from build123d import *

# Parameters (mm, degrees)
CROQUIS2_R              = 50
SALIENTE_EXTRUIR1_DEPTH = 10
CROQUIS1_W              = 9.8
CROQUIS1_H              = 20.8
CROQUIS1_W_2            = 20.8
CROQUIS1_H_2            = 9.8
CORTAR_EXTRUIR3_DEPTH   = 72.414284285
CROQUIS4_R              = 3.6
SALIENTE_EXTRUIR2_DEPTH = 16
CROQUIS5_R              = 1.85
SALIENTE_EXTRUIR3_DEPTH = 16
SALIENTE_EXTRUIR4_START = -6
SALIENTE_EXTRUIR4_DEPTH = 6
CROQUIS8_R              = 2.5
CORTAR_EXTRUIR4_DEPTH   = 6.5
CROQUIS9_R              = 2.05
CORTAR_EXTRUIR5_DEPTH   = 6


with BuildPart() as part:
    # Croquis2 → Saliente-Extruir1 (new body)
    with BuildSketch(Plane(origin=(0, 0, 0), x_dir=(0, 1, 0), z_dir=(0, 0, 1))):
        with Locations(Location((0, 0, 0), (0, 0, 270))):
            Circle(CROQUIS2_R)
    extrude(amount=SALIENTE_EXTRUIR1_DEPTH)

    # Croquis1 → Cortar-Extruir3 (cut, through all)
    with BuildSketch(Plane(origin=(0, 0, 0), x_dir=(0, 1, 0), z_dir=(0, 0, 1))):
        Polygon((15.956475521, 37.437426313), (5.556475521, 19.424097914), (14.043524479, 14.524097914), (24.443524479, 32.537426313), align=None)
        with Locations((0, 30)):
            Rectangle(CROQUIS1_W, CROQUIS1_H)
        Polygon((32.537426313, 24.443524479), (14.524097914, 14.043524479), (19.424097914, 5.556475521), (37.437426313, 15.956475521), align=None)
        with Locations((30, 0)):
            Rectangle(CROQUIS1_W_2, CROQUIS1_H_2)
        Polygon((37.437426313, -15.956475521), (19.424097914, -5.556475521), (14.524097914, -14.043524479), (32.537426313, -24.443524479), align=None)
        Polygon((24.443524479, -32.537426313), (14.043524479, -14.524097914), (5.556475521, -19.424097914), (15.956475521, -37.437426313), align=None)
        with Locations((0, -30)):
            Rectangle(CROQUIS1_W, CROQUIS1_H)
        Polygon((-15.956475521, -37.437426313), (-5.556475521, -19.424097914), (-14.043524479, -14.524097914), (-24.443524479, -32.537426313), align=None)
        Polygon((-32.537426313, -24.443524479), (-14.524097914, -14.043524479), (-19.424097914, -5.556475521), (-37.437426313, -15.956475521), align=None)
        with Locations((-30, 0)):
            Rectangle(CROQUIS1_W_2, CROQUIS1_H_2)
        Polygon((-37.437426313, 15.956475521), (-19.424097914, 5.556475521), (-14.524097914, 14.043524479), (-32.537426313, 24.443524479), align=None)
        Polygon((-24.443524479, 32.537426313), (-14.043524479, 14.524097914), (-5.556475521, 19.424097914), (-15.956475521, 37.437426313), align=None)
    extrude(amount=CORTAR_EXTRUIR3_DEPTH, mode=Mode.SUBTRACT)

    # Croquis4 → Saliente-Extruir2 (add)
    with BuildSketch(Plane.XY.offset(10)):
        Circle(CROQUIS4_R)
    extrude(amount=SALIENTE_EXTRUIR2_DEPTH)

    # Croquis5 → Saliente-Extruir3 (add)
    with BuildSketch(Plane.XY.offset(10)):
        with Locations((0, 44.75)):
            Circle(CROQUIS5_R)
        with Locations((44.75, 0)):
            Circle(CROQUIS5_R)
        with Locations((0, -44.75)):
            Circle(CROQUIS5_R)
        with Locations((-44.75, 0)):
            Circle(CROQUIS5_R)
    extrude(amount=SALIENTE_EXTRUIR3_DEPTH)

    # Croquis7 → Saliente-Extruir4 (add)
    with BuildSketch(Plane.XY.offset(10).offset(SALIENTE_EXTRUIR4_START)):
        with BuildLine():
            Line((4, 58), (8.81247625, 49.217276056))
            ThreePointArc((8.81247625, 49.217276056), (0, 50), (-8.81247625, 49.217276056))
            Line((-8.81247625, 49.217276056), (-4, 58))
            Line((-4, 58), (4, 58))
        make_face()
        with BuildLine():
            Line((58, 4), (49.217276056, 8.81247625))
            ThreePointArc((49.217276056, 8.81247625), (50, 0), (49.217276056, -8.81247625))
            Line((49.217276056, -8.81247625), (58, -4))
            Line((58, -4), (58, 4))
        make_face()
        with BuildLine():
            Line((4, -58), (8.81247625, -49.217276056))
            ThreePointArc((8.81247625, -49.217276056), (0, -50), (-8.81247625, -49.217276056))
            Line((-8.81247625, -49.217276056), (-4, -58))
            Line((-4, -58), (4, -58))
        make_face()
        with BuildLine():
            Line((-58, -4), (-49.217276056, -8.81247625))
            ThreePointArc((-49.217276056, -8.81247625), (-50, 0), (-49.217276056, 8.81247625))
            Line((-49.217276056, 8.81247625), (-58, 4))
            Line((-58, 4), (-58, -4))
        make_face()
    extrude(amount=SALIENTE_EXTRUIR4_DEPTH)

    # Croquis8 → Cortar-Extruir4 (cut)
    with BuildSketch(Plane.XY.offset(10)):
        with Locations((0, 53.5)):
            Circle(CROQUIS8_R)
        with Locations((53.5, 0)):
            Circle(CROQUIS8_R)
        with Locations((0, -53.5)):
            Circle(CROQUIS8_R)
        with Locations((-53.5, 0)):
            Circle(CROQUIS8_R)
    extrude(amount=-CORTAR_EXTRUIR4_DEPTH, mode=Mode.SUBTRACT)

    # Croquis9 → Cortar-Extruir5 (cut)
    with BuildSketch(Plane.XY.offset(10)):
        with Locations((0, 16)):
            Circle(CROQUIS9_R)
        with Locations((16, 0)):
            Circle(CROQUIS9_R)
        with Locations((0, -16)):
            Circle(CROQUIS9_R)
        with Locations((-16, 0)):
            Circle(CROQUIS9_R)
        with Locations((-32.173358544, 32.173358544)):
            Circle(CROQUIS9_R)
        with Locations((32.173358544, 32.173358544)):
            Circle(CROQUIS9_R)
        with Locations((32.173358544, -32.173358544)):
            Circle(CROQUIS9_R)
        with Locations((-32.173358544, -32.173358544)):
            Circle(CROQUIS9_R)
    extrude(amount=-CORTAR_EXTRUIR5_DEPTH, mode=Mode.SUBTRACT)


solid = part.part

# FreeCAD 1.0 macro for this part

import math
import FreeCAD as App
import Part
import Sketcher

V = App.Vector
Q = App.Units.Quantity


def add_polygon(sketch, points):
    """Adds a closed chain of lines whose ends are joined by coincident constraints."""
    first, n = sketch.GeometryCount, len(points)
    for a, b in zip(points, points[1:] + points[:1]):
        sketch.addGeometry(Part.LineSegment(App.Vector(*a, 0), App.Vector(*b, 0)), False)
    for i in range(n):
        sketch.addConstraint(Sketcher.Constraint("Coincident", first + i, 2, first + (i + 1) % n, 1))

doc = App.newDocument("Part")
body = doc.addObject("PartDesign::Body", "Body")

sketch1 = body.newObject("Sketcher::SketchObject", "Sketch")
sketch1.AttachmentSupport = (doc.getObject("XY_Plane"), [""])
sketch1.MapMode = "FlatFace"
sketch1.addGeometry(Part.Circle(V(0, 0, 0), V(0, 0, 1), 50), False)
sketch1.addConstraint([
    Sketcher.Constraint("Coincident", 0, 3, -1, 1),
    Sketcher.Constraint("Diameter", 0, 100.0),
])
pad1 = body.newObject("PartDesign::Pad", "Pad")
pad1.Profile = sketch1
pad1.Length = 10

sketch2 = body.newObject("Sketcher::SketchObject", "Sketch001")
sketch2.AttachmentSupport = (doc.getObject("XY_Plane"), [""])
sketch2.MapMode = "FlatFace"
add_polygon(sketch2, [(-37, 16), (-19, 6), (-15, 14), (-33, 24)])
add_polygon(sketch2, [(-40, -5), (-20, -5), (-20, 5), (-40, 5)])
add_polygon(sketch2, [(-24, 33), (-14, 15), (-6, 19), (-16, 37)])
add_polygon(sketch2, [(-5, 20), (5, 20), (5, 40), (-5, 40)])
add_polygon(sketch2, [(16, 37), (6, 19), (14, 15), (24, 33)])
add_polygon(sketch2, [(33, 24), (15, 14), (19, 6), (37, 16)])
add_polygon(sketch2, [(20, -5), (40, -5), (40, 5), (20, 5)])
add_polygon(sketch2, [(37, -16), (19, -6), (15, -14), (33, -24)])
add_polygon(sketch2, [(24, -33), (14, -15), (6, -19), (16, -37)])
add_polygon(sketch2, [(-5, -40), (5, -40), (5, -20), (-5, -20)])
add_polygon(sketch2, [(-16, -37), (-6, -19), (-14, -15), (-24, -33)])
add_polygon(sketch2, [(-33, -24), (-15, -14), (-19, -6), (-37, -16)])
sketch2.addConstraint([
    Sketcher.Constraint("Horizontal", 4),
    Sketcher.Constraint("Vertical", 5),
    Sketcher.Constraint("Horizontal", 6),
    Sketcher.Constraint("Vertical", 7),
    Sketcher.Constraint("Horizontal", 12),
    Sketcher.Constraint("Vertical", 13),
    Sketcher.Constraint("Horizontal", 14),
    Sketcher.Constraint("Vertical", 15),
    Sketcher.Constraint("Horizontal", 24),
    Sketcher.Constraint("Vertical", 25),
    Sketcher.Constraint("Horizontal", 26),
    Sketcher.Constraint("Vertical", 27),
    Sketcher.Constraint("Horizontal", 36),
    Sketcher.Constraint("Vertical", 37),
    Sketcher.Constraint("Horizontal", 38),
    Sketcher.Constraint("Vertical", 39),
    Sketcher.Constraint("Symmetric", 6, 2, 24, 2, -1, 1),
    Sketcher.Constraint("Symmetric", 4, 2, 26, 2, -1, 1),
    Sketcher.Constraint("Symmetric", 0, 2, 28, 2, -1, 1),
    Sketcher.Constraint("Symmetric", 1, 2, 29, 2, -1, 1),
    Sketcher.Constraint("Symmetric", 2, 2, 30, 2, -1, 1),
    Sketcher.Constraint("Symmetric", 3, 2, 31, 2, -1, 1),
    Sketcher.Constraint("Symmetric", 8, 2, 32, 2, -1, 1),
    Sketcher.Constraint("Symmetric", 9, 2, 33, 2, -1, 1),
    Sketcher.Constraint("Symmetric", 10, 2, 34, 2, -1, 1),
    Sketcher.Constraint("Symmetric", 11, 2, 35, 2, -1, 1),
    Sketcher.Constraint("Symmetric", 14, 2, 36, 2, -1, 1),
    Sketcher.Constraint("Symmetric", 12, 2, 38, 2, -1, 1),
    Sketcher.Constraint("Symmetric", 16, 2, 40, 2, -1, 1),
    Sketcher.Constraint("Symmetric", 17, 2, 41, 2, -1, 1),
    Sketcher.Constraint("Symmetric", 18, 2, 42, 2, -1, 1),
    Sketcher.Constraint("Symmetric", 19, 2, 43, 2, -1, 1),
    Sketcher.Constraint("Symmetric", 20, 2, 44, 2, -1, 1),
    Sketcher.Constraint("Symmetric", 21, 2, 45, 2, -1, 1),
    Sketcher.Constraint("Symmetric", 22, 2, 46, 2, -1, 1),
    Sketcher.Constraint("Symmetric", 23, 2, 47, 2, -1, 1),
    Sketcher.Constraint("Symmetric", 9, 2, 16, 2, -2),
    Sketcher.Constraint("Symmetric", 8, 2, 17, 2, -2),
    Sketcher.Constraint("Symmetric", 11, 2, 18, 2, -2),
    Sketcher.Constraint("Symmetric", 10, 2, 19, 2, -2),
    Sketcher.Constraint("Symmetric", 1, 2, 20, 2, -2),
    Sketcher.Constraint("Symmetric", 0, 2, 21, 2, -2),
    Sketcher.Constraint("Symmetric", 3, 2, 22, 2, -2),
    Sketcher.Constraint("Symmetric", 2, 2, 23, 2, -2),
    Sketcher.Constraint("Perpendicular", 0, 1),
    Sketcher.Constraint("Perpendicular", 1, 2),
    Sketcher.Constraint("Perpendicular", 2, 3),
    Sketcher.Constraint("Perpendicular", 8, 9),
    Sketcher.Constraint("Perpendicular", 9, 10),
    Sketcher.Constraint("Perpendicular", 10, 11),
    Sketcher.Constraint("Parallel", 3, 16),
    Sketcher.Constraint("Horizontal", 7, 2, 24, 2),
    Sketcher.Constraint("Vertical", 13, 2, 36, 2),
    Sketcher.Constraint("Equal", 38, 5),
    Sketcher.Constraint("Equal", 26, 13),
    Sketcher.Constraint("Equal", 2, 8),
    Sketcher.Constraint("Equal", 3, 9),
    Sketcher.Constraint("Angle", 0, Q("-30 deg")),
    Sketcher.Constraint("DistanceX", 4, 1, 4, 2, 20.8),
    Sketcher.Constraint("DistanceX", 12, 1, 12, 2, 9.8),
    Sketcher.Constraint("Distance", 0, 20.8),
    Sketcher.Constraint("Distance", 1, 9.8),
    Sketcher.Constraint("DistanceX", 4, 2, -1, 1, 19.6),
    Sketcher.Constraint("DistanceY", -1, 1, 12, 2, 19.6),
    Sketcher.Constraint("DistanceX", 8, 2, 16, 2, 19.6),
    Sketcher.Constraint("DistanceY", 28, 2, 20, 2, 19.6),
    Sketcher.Constraint("DistanceX", 2, 2, 8, 2, 18.493902),
    Sketcher.Constraint("DistanceY", 2, 2, 10, 2, 12.993902),
])
pocket1 = body.newObject("PartDesign::Pocket", "Pocket")
pocket1.Profile = sketch2
pocket1.Type = "ThroughAll"
pocket1.Reversed = True

sketch3 = body.newObject("Sketcher::SketchObject", "Sketch002")
sketch3.AttachmentSupport = (doc.getObject("XY_Plane"), [""])
sketch3.MapMode = "FlatFace"
sketch3.AttachmentOffset = App.Placement(V(0, 0, 10), App.Rotation())
sketch3.addGeometry(Part.Circle(V(0, 0, 0), V(0, 0, 1), 3.6), False)
sketch3.addConstraint([
    Sketcher.Constraint("Coincident", 0, 3, -1, 1),
    Sketcher.Constraint("Diameter", 0, 7.2),
])
pad2 = body.newObject("PartDesign::Pad", "Pad001")
pad2.Profile = sketch3
pad2.Length = 16

sketch4 = body.newObject("Sketcher::SketchObject", "Sketch003")
sketch4.AttachmentSupport = (doc.getObject("XY_Plane"), [""])
sketch4.MapMode = "FlatFace"
sketch4.AttachmentOffset = App.Placement(V(0, 0, 10), App.Rotation())
sketch4.addGeometry([
    Part.Circle(V(0, 44.8, 0), V(0, 0, 1), 1.9),
    Part.Circle(V(44.8, 0, 0), V(0, 0, 1), 1.9),
    Part.Circle(V(0, -44.8, 0), V(0, 0, 1), 1.9),
    Part.Circle(V(-44.8, 0, 0), V(0, 0, 1), 1.9),
], False)
sketch4.addConstraint([
    Sketcher.Constraint("Equal", 0, 1),
    Sketcher.Constraint("Equal", 1, 2),
    Sketcher.Constraint("Equal", 2, 3),
    Sketcher.Constraint("Symmetric", 0, 3, 2, 3, -1, 1),
    Sketcher.Constraint("Symmetric", 1, 3, 3, 3, -1, 1),
    Sketcher.Constraint("PointOnObject", 0, 3, -2),
    Sketcher.Constraint("PointOnObject", 1, 3, -1),
    Sketcher.Constraint("Diameter", 0, 3.7),
    Sketcher.Constraint("DistanceY", 2, 3, 0, 3, 89.5),
    Sketcher.Constraint("DistanceX", 3, 3, 1, 3, 89.5),
])
pad3 = body.newObject("PartDesign::Pad", "Pad002")
pad3.Profile = sketch4
pad3.Length = 16

sketch5 = body.newObject("Sketcher::SketchObject", "Sketch004")
sketch5.AttachmentSupport = (doc.getObject("XY_Plane"), [""])
sketch5.MapMode = "FlatFace"
sketch5.AttachmentOffset = App.Placement(V(0, 0, 4), App.Rotation())
sketch5.addGeometry([
    Part.LineSegment(V(9, 49, 0), V(4, 58, 0)),
    Part.LineSegment(V(4, 58, 0), V(-4, 58, 0)),
    Part.LineSegment(V(-4, 58, 0), V(-9, 49, 0)),
    Part.ArcOfCircle(Part.Circle(V(0, 0, 0), V(0, 0, 1), 50), math.radians(80), math.radians(100)),
    Part.LineSegment(V(58, 4, 0), V(49, 9, 0)),
    Part.ArcOfCircle(Part.Circle(V(0, 0, 0), V(0, 0, 1), 50), math.radians(-10), math.radians(10)),
    Part.LineSegment(V(49, -9, 0), V(58, -4, 0)),
    Part.LineSegment(V(58, -4, 0), V(58, 4, 0)),
    Part.LineSegment(V(4, -58, 0), V(9, -49, 0)),
    Part.ArcOfCircle(Part.Circle(V(0, 0, 0), V(0, 0, 1), 50), math.radians(-100), math.radians(-80)),
    Part.LineSegment(V(-9, -49, 0), V(-4, -58, 0)),
    Part.LineSegment(V(-4, -58, 0), V(4, -58, 0)),
    Part.LineSegment(V(-58, -4, 0), V(-49, -9, 0)),
    Part.ArcOfCircle(Part.Circle(V(0, 0, 0), V(0, 0, 1), 50), math.radians(170), math.radians(190)),
    Part.LineSegment(V(-49, 9, 0), V(-58, 4, 0)),
    Part.LineSegment(V(-58, 4, 0), V(-58, -4, 0)),
], False)
sketch5.addConstraint([
    Sketcher.Constraint("Coincident", 0, 2, 1, 1),
    Sketcher.Constraint("Coincident", 1, 2, 2, 1),
    Sketcher.Constraint("Coincident", 2, 2, 3, 2),
    Sketcher.Constraint("Coincident", 3, 1, 0, 1),
    Sketcher.Constraint("Coincident", 4, 2, 5, 2),
    Sketcher.Constraint("Coincident", 5, 1, 6, 1),
    Sketcher.Constraint("Coincident", 6, 2, 7, 1),
    Sketcher.Constraint("Coincident", 7, 2, 4, 1),
    Sketcher.Constraint("Coincident", 8, 2, 9, 2),
    Sketcher.Constraint("Coincident", 9, 1, 10, 1),
    Sketcher.Constraint("Coincident", 10, 2, 11, 1),
    Sketcher.Constraint("Coincident", 11, 2, 8, 1),
    Sketcher.Constraint("Coincident", 12, 2, 13, 2),
    Sketcher.Constraint("Coincident", 13, 1, 14, 1),
    Sketcher.Constraint("Coincident", 14, 2, 15, 1),
    Sketcher.Constraint("Coincident", 15, 2, 12, 1),
    Sketcher.Constraint("Horizontal", 1),
    Sketcher.Constraint("Vertical", 7),
    Sketcher.Constraint("Horizontal", 11),
    Sketcher.Constraint("Vertical", 15),
    Sketcher.Constraint("Coincident", 3, 3, -1, 1),
    Sketcher.Constraint("Coincident", 5, 3, -1, 1),
    Sketcher.Constraint("Coincident", 9, 3, -1, 1),
    Sketcher.Constraint("Coincident", 13, 3, -1, 1),
    Sketcher.Constraint("Equal", 3, 5),
    Sketcher.Constraint("Equal", 5, 9),
    Sketcher.Constraint("Equal", 9, 13),
    Sketcher.Constraint("Symmetric", 0, 2, 10, 2, -1, 1),
    Sketcher.Constraint("Symmetric", 6, 2, 14, 2, -1, 1),
    Sketcher.Constraint("Perpendicular", 2, 4),
    Sketcher.Constraint("Perpendicular", 0, 6),
    Sketcher.Constraint("Perpendicular", 4, 8),
    Sketcher.Constraint("Perpendicular", 6, 10),
    Sketcher.Constraint("Perpendicular", 8, 12),
    Sketcher.Constraint("Perpendicular", 10, 14),
    Sketcher.Constraint("Horizontal", 2, 2, 3, 1),
    Sketcher.Constraint("Horizontal", 8, 2, 9, 1),
    Sketcher.Constraint("Horizontal", 5, 1, 12, 2),
    Sketcher.Constraint("Horizontal", 4, 2, 13, 1),
    Sketcher.Constraint("Horizontal", 7, 2, 14, 2),
    Sketcher.Constraint("Equal", 11, 7),
    Sketcher.Constraint("Equal", 2, 4),
    Sketcher.Constraint("Radius", 3, 50.0),
    Sketcher.Constraint("DistanceX", 1, 2, 1, 1, 8.0),
    Sketcher.Constraint("DistanceY", -1, 1, 0, 2, 58.0),
    Sketcher.Constraint("DistanceX", 3, 1, 4, 2, 40.4048),
])
pad4 = body.newObject("PartDesign::Pad", "Pad003")
pad4.Profile = sketch5
pad4.Length = 6

sketch6 = body.newObject("Sketcher::SketchObject", "Sketch005")
sketch6.AttachmentSupport = (doc.getObject("XY_Plane"), [""])
sketch6.MapMode = "FlatFace"
sketch6.AttachmentOffset = App.Placement(V(0, 0, 10), App.Rotation())
sketch6.addGeometry([
    Part.Circle(V(0, 53.5, 0), V(0, 0, 1), 2.5),
    Part.Circle(V(53.5, 0, 0), V(0, 0, 1), 2.5),
    Part.Circle(V(0, -53.5, 0), V(0, 0, 1), 2.5),
    Part.Circle(V(-53.5, 0, 0), V(0, 0, 1), 2.5),
], False)
sketch6.addConstraint([
    Sketcher.Constraint("Equal", 0, 1),
    Sketcher.Constraint("Equal", 1, 2),
    Sketcher.Constraint("Equal", 2, 3),
    Sketcher.Constraint("Symmetric", 0, 3, 2, 3, -1, 1),
    Sketcher.Constraint("Symmetric", 1, 3, 3, 3, -1, 1),
    Sketcher.Constraint("PointOnObject", 0, 3, -2),
    Sketcher.Constraint("PointOnObject", 1, 3, -1),
    Sketcher.Constraint("Diameter", 0, 5.0),
    Sketcher.Constraint("DistanceY", 2, 3, 0, 3, 107.0),
    Sketcher.Constraint("DistanceX", 3, 3, 1, 3, 107.0),
])
pocket2 = body.newObject("PartDesign::Pocket", "Pocket001")
pocket2.Profile = sketch6
pocket2.Length = 6.5

sketch7 = body.newObject("Sketcher::SketchObject", "Sketch006")
sketch7.AttachmentSupport = (doc.getObject("XY_Plane"), [""])
sketch7.MapMode = "FlatFace"
sketch7.AttachmentOffset = App.Placement(V(0, 0, 10), App.Rotation())
sketch7.addGeometry([
    Part.Circle(V(0, 16, 0), V(0, 0, 1), 2),
    Part.Circle(V(16, 0, 0), V(0, 0, 1), 2),
    Part.Circle(V(0, -16, 0), V(0, 0, 1), 2),
    Part.Circle(V(-16, 0, 0), V(0, 0, 1), 2),
    Part.Circle(V(-32.2, 32.2, 0), V(0, 0, 1), 2),
    Part.Circle(V(32.2, 32.2, 0), V(0, 0, 1), 2),
    Part.Circle(V(32.2, -32.2, 0), V(0, 0, 1), 2),
    Part.Circle(V(-32.2, -32.2, 0), V(0, 0, 1), 2),
], False)
sketch7.addConstraint([
    Sketcher.Constraint("Equal", 0, 1),
    Sketcher.Constraint("Equal", 1, 2),
    Sketcher.Constraint("Equal", 2, 3),
    Sketcher.Constraint("Equal", 3, 4),
    Sketcher.Constraint("Equal", 4, 5),
    Sketcher.Constraint("Equal", 5, 6),
    Sketcher.Constraint("Equal", 6, 7),
    Sketcher.Constraint("Symmetric", 0, 3, 2, 3, -1, 1),
    Sketcher.Constraint("Symmetric", 1, 3, 3, 3, -1, 1),
    Sketcher.Constraint("Symmetric", 4, 3, 6, 3, -1, 1),
    Sketcher.Constraint("Symmetric", 5, 3, 7, 3, -1, 1),
    Sketcher.Constraint("Symmetric", 4, 3, 5, 3, -2),
    Sketcher.Constraint("PointOnObject", 0, 3, -2),
    Sketcher.Constraint("PointOnObject", 1, 3, -1),
    Sketcher.Constraint("Diameter", 0, 4.1),
    Sketcher.Constraint("DistanceY", -1, 1, 0, 3, 16.0),
    Sketcher.Constraint("DistanceX", -1, 1, 1, 3, 16.0),
    Sketcher.Constraint("DistanceX", 4, 3, -1, 1, 32.173359),
    Sketcher.Constraint("DistanceY", -1, 1, 4, 3, 32.173359),
])
pocket3 = body.newObject("PartDesign::Pocket", "Pocket002")
pocket3.Profile = sketch7
pocket3.Length = 6

doc.recompute()
